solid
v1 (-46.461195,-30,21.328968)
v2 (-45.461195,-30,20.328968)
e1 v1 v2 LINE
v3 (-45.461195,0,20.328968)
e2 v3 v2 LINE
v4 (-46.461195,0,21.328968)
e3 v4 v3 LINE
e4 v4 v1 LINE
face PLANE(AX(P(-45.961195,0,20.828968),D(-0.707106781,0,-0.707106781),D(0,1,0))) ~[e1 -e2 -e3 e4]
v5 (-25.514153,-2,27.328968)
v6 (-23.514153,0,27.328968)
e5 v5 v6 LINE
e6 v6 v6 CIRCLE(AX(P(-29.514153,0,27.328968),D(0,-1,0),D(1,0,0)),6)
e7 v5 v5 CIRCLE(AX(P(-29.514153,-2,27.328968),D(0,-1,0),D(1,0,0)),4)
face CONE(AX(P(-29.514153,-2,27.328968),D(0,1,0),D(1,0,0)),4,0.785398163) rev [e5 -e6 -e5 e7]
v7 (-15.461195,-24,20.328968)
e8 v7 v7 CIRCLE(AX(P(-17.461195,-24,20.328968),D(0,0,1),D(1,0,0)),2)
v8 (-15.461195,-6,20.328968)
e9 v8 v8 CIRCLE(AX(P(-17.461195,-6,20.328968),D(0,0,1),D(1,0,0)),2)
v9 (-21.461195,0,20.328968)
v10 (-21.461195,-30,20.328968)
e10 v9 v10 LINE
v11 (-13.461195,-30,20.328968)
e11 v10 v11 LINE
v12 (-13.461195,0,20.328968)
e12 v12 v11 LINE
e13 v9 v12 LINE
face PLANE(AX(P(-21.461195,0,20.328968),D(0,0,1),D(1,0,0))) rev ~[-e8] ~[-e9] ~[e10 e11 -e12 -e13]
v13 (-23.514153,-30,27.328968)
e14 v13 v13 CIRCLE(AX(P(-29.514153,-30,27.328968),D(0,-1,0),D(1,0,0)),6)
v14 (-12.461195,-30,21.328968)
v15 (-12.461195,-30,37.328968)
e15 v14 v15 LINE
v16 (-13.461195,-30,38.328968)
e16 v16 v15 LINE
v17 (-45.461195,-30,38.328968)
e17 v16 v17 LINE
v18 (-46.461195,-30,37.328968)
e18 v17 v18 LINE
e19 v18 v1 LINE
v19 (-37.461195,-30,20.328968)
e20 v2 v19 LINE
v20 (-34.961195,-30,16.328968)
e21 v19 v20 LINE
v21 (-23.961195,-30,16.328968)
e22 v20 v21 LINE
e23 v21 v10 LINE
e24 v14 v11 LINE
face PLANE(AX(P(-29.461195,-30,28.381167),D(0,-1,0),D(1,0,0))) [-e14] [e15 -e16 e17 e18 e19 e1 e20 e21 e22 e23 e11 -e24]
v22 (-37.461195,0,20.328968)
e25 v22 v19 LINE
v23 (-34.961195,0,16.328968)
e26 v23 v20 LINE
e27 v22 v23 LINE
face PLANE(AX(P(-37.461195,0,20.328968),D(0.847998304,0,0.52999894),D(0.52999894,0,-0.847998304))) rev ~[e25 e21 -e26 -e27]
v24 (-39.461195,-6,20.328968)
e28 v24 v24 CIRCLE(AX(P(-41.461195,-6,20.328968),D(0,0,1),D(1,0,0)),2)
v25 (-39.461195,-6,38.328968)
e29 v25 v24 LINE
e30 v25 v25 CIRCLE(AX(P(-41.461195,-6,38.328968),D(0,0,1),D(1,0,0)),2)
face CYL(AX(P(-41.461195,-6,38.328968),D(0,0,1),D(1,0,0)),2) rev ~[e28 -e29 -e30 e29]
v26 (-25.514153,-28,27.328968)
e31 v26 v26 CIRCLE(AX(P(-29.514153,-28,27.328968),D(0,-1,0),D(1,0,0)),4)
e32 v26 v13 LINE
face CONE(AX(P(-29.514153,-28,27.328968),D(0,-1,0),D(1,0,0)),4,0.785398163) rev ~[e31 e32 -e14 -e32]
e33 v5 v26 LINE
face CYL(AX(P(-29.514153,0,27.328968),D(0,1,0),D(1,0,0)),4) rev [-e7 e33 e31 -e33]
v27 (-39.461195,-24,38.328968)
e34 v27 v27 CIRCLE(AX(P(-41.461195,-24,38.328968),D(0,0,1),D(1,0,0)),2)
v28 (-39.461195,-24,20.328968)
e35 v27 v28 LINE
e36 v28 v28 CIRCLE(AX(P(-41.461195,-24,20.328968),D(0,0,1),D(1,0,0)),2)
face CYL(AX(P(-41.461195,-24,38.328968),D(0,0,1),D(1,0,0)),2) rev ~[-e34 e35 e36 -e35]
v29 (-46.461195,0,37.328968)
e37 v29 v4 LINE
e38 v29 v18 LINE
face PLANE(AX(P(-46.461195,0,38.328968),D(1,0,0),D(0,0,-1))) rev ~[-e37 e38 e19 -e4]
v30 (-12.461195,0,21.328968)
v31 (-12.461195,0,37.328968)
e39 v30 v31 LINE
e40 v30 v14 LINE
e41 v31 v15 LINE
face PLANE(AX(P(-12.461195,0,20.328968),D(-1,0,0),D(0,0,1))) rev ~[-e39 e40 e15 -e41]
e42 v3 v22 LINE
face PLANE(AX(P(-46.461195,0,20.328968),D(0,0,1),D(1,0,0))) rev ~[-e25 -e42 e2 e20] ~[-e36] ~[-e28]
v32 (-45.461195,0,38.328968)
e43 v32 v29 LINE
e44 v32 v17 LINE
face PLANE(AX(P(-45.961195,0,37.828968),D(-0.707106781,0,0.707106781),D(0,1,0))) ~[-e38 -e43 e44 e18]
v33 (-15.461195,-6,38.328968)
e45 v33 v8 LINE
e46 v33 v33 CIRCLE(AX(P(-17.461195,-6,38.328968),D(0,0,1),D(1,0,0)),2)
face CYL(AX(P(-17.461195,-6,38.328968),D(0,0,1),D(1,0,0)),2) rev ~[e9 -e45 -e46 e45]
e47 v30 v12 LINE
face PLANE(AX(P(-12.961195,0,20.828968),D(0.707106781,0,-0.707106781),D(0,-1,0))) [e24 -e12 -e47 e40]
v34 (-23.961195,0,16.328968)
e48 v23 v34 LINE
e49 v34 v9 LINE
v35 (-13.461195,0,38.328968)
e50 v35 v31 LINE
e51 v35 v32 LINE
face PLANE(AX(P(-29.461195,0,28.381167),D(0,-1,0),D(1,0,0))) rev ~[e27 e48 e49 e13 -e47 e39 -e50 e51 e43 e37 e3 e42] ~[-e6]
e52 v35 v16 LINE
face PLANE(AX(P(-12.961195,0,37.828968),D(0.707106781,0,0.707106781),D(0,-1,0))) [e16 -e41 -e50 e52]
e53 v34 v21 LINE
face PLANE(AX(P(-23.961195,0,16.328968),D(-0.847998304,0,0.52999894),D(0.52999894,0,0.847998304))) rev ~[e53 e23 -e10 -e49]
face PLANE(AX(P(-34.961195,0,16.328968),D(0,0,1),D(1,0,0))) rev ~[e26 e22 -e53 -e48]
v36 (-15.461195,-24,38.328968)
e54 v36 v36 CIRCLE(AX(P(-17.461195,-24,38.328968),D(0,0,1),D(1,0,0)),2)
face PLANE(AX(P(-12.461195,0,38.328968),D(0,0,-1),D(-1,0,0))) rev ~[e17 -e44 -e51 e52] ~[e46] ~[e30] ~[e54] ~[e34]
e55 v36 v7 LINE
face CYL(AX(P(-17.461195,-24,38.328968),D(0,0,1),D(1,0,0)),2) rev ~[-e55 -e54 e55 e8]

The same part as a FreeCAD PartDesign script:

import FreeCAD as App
import Part
import Sketcher
from FreeCAD import Vector
Q = App.Units.Quantity


def edges_at(feature, points):
    """Names of the edges that pass closest to the given points."""
    edges = feature.Shape.Edges
    near = lambda p: min(range(len(edges)), key=lambda i: edges[i].distToShape(Part.Vertex(*p))[0])
    return sorted({f"Edge{near(p) + 1}" for p in points})


def add_polygon(sketch, points):
    """Adds a closed chain of lines whose ends are joined by coincident constraints."""
    first, n = sketch.GeometryCount, len(points)
    for a, b in zip(points, points[1:] + points[:1]):
        sketch.addGeometry(Part.LineSegment(App.Vector(*a, 0), App.Vector(*b, 0)), False)
    for i in range(n):
        sketch.addConstraint(Sketcher.Constraint("Coincident", first + i, 2, first + (i + 1) % n, 1))

doc = App.newDocument("Part")
body = doc.addObject("PartDesign::Body", "Body")

sketch1 = doc.addObject("Sketcher::SketchObject", "Sketch")
body.addObject(sketch1)
sketch1.AttachmentSupport = (doc.XZ_Plane, [""])
sketch1.MapMode = "FlatFace"
add_polygon(sketch1, [(-12.5, 38.3), (-46.5, 38.3), (-46.5, 20.3), (-37.5, 20.3), (-35, 16.3), (-24, 16.3), (-21.5, 20.3), (-12.5, 20.3)])
sketch1.addGeometry(Part.Circle(Vector(-29.5, 27.3, 0), Vector(0, 0, 1), 4), False)
sketch1.addConstraint([
    Sketcher.Constraint("Horizontal", 0),
    Sketcher.Constraint("Vertical", 1),
    Sketcher.Constraint("Horizontal", 2),
    Sketcher.Constraint("Horizontal", 4),
    Sketcher.Constraint("Horizontal", 6),
    Sketcher.Constraint("Vertical", 7),
    Sketcher.Constraint("Horizontal", 2, 2, 5, 2),
    Sketcher.Constraint("Equal", 2, 6),
    Sketcher.Constraint("Equal", 3, 5),
    Sketcher.Constraint("Diameter", 8, Q("8 mm")),
    Sketcher.Constraint("DistanceX", 0, 2, 0, 1, Q("34 mm")),
    Sketcher.Constraint("DistanceX", 2, 1, 2, 2, Q("9 mm")),
    Sketcher.Constraint("DistanceX", 4, 1, 4, 2, Q("11 mm")),
    Sketcher.Constraint("DistanceY", 1, 2, 1, 1, Q("18 mm")),
    Sketcher.Constraint("DistanceY", 8, 3, 0, 2, Q("11 mm")),
    Sketcher.Constraint("DistanceY", 3, 2, 2, 2, Q("4 mm")),
    Sketcher.Constraint("DistanceY", -1, 1, 0, 2, Q("38.328968 mm")),
    Sketcher.Constraint("DistanceX", 0, 2, 8, 3, Q("16.947042 mm")),
    Sketcher.Constraint("DistanceX", 8, 3, -1, 1, Q("29.514153 mm")),
])
pad1 = doc.addObject("PartDesign::Pad", "Pad")
body.addObject(pad1)
pad1.Profile = sketch1
pad1.Length = 30
doc.recompute()

chamfer = doc.addObject("PartDesign::Chamfer", "Chamfer")
body.addObject(chamfer)
chamfer.Base = (pad1, edges_at(pad1, [(-33.514, -30, 27.329), (-33.514, 0, 27.329)]))
chamfer.Size = 2
doc.recompute()

chamfer2 = doc.addObject("PartDesign::Chamfer", "Chamfer001")
body.addObject(chamfer2)
chamfer2.Base = (chamfer, edges_at(chamfer, [
    (-46.461, -15, 38.329),
    (-12.461, -15, 38.329),
    (-12.461, -15, 20.329),
    (-46.461, -15, 20.329),
]))
chamfer2.Size = 1

sketch2 = doc.addObject("Sketcher::SketchObject", "Sketch001")
body.addObject(sketch2)
sketch2.AttachmentSupport = (doc.XY_Plane, [""])
sketch2.MapMode = "FlatFace"
sketch2.AttachmentOffset = App.Placement(Vector(0, 0, 38.328968), App.Rotation())
sketch2.addGeometry([
    Part.Circle(Vector(-41.5, -6, 0), Vector(0, 0, 1), 2),
    Part.Circle(Vector(-41.5, -24, 0), Vector(0, 0, 1), 2),
    Part.Circle(Vector(-17.5, -24, 0), Vector(0, 0, 1), 2),
    Part.Circle(Vector(-17.5, -6, 0), Vector(0, 0, 1), 2),
], False)
sketch2.addConstraint([
    Sketcher.Constraint("Equal", 0, 1),
    Sketcher.Constraint("Equal", 1, 2),
    Sketcher.Constraint("Equal", 2, 3),
    Sketcher.Constraint("Horizontal", 1, 3, 2, 3),
    Sketcher.Constraint("Horizontal", 0, 3, 3, 3),
    Sketcher.Constraint("Vertical", 0, 3, 1, 3),
    Sketcher.Constraint("Vertical", 2, 3, 3, 3),
    Sketcher.Constraint("Diameter", 0, Q("4 mm")),
    Sketcher.Constraint("DistanceY", 0, 3, -1, 1, Q("6 mm")),
    Sketcher.Constraint("DistanceY", 1, 3, -1, 1, Q("24 mm")),
    Sketcher.Constraint("DistanceX", 1, 3, 2, 3, Q("24 mm")),
    Sketcher.Constraint("DistanceX", 0, 3, -1, 1, Q("41.461195 mm")),
])
pocket1 = doc.addObject("PartDesign::Pocket", "Pocket")
body.addObject(pocket1)
pocket1.Profile = sketch2
pocket1.Length = 25

doc.recompute()
